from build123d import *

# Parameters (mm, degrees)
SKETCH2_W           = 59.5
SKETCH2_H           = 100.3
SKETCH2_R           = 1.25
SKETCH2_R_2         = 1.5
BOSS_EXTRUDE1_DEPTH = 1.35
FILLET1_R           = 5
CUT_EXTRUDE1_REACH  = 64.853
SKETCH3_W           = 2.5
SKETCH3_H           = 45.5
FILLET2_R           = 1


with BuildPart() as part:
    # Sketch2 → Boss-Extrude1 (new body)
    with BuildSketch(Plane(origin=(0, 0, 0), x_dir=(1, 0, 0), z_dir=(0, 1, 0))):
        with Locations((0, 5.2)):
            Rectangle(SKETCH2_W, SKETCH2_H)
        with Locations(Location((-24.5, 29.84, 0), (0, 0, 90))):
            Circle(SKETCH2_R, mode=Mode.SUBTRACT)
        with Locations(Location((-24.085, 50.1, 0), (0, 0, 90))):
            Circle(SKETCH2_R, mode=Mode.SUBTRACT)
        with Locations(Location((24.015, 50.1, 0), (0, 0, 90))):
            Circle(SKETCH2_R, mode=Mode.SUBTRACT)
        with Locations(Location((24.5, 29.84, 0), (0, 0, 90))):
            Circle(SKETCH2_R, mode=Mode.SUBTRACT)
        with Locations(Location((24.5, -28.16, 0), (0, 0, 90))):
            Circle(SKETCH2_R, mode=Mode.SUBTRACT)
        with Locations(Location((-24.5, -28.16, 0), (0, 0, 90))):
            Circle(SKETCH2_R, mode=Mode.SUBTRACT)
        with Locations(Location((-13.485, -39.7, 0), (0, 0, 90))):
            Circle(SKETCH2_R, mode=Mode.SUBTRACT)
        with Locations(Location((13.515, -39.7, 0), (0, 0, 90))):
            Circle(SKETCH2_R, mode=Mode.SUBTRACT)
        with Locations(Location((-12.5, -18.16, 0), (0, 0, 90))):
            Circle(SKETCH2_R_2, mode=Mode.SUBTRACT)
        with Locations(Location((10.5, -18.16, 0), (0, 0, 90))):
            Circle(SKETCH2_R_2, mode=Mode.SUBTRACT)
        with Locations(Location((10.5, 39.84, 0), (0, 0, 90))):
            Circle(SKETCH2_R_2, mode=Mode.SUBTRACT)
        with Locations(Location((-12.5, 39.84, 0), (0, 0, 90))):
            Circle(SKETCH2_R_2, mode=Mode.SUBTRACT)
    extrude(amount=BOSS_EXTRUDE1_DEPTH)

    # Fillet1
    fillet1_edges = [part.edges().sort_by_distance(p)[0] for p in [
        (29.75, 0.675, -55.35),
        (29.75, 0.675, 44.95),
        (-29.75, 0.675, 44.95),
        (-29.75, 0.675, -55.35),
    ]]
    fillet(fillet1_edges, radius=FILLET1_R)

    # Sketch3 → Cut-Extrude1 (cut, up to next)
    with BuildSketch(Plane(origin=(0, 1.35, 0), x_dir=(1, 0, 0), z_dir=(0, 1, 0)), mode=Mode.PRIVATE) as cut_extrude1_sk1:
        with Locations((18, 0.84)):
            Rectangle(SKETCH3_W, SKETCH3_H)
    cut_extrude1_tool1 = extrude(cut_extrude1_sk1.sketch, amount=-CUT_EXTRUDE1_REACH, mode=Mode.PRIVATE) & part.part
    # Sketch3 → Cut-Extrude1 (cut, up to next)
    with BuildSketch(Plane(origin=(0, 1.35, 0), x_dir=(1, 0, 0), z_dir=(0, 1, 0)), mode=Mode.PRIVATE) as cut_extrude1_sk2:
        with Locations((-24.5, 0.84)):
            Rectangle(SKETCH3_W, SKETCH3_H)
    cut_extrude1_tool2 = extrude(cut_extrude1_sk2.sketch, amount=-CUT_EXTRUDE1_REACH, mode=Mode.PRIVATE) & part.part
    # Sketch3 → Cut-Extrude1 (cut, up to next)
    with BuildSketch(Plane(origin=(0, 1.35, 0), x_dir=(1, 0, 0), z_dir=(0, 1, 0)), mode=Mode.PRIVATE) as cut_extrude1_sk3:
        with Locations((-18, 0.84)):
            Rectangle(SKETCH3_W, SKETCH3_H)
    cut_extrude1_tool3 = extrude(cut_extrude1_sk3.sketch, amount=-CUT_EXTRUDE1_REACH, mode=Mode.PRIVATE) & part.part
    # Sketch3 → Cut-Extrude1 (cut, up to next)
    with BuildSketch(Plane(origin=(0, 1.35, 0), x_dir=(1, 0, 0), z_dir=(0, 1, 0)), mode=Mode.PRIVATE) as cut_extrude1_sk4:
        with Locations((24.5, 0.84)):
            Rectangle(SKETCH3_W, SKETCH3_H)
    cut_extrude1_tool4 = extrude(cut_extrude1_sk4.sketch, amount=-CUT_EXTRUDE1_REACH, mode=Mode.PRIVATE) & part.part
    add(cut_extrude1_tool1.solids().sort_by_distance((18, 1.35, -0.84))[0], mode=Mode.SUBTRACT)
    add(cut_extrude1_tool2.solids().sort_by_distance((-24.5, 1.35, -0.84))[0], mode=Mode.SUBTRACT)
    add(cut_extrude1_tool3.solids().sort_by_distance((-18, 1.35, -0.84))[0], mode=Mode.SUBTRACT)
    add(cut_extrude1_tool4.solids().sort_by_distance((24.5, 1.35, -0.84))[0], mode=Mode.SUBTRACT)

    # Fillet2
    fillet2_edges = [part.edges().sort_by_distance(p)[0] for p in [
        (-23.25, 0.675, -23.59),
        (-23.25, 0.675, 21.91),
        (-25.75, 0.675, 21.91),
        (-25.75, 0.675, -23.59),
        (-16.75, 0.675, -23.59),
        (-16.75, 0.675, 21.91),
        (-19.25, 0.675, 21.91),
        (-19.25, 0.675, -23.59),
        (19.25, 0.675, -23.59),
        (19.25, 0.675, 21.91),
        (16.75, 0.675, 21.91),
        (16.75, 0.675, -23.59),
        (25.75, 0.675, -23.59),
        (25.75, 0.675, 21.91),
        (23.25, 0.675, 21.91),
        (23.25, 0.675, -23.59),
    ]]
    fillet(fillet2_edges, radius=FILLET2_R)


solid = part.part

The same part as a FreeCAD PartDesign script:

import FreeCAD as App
import Part
import Sketcher
from FreeCAD import Vector
Q = App.Units.Quantity


def edges_at(feature, points):
    """Names of the edges that pass closest to the given points."""
    edges = feature.Shape.Edges
    near = lambda p: min(range(len(edges)), key=lambda i: edges[i].distToShape(Part.Vertex(*p))[0])
    return sorted({f"Edge{near(p) + 1}" for p in points})


def add_polygon(sketch, points):
    """Adds a closed chain of lines whose ends are joined by coincident constraints."""
    first, n = sketch.GeometryCount, len(points)
    for a, b in zip(points, points[1:] + points[:1]):
        sketch.addGeometry(Part.LineSegment(App.Vector(*a, 0), App.Vector(*b, 0)), False)
    for i in range(n):
        sketch.addConstraint(Sketcher.Constraint("Coincident", first + i, 2, first + (i + 1) % n, 1))

doc = App.newDocument("Part")
body = doc.addObject("PartDesign::Body", "Body")

sketch1 = body.newObject("Sketcher::SketchObject", "Sketch")
sketch1.AttachmentSupport = (doc.getObject("XZ_Plane"), [""])
sketch1.MapMode = "FlatFace"
add_polygon(sketch1, [(-29.75, -55.35), (-29.75, 44.95), (29.75, 44.95), (29.75, -55.35)])
sketch1.addGeometry(Part.Circle(Vector(-13.485, 39.7, 0), Vector(0, 0, 1), 1.25), False)
sketch1.addGeometry(Part.Circle(Vector(-24.5, 28.16, 0), Vector(0, 0, 1), 1.25), False)
sketch1.addGeometry(Part.Circle(Vector(-12.5, 18.16, 0), Vector(0, 0, 1), 1.5), False)
sketch1.addGeometry(Part.Circle(Vector(10.5, 18.16, 0), Vector(0, 0, 1), 1.5), False)
sketch1.addGeometry(Part.Circle(Vector(13.515, 39.7, 0), Vector(0, 0, 1), 1.25), False)
sketch1.addGeometry(Part.Circle(Vector(24.5, 28.16, 0), Vector(0, 0, 1), 1.25), False)
sketch1.addGeometry(Part.Circle(Vector(-24.5, -29.84, 0), Vector(0, 0, 1), 1.25), False)
sketch1.addGeometry(Part.Circle(Vector(-24.085, -50.1, 0), Vector(0, 0, 1), 1.25), False)
sketch1.addGeometry(Part.Circle(Vector(-12.5, -39.84, 0), Vector(0, 0, 1), 1.5), False)
sketch1.addGeometry(Part.Circle(Vector(10.5, -39.84, 0), Vector(0, 0, 1), 1.5), False)
sketch1.addGeometry(Part.Circle(Vector(24.5, -29.84, 0), Vector(0, 0, 1), 1.25), False)
sketch1.addGeometry(Part.Circle(Vector(24.015, -50.1, 0), Vector(0, 0, 1), 1.25), False)
sketch1.addConstraint([
    Sketcher.Constraint("Vertical", 0),
    Sketcher.Constraint("Horizontal", 1),
    Sketcher.Constraint("Vertical", 2),
    Sketcher.Constraint("Horizontal", 3),
    Sketcher.Constraint("Equal", 4, 5),
    Sketcher.Constraint("Equal", 6, 7),
    Sketcher.Constraint("Equal", 5, 8),
    Sketcher.Constraint("Equal", 8, 9),
    Sketcher.Constraint("Equal", 9, 10),
    Sketcher.Constraint("Equal", 10, 11),
    Sketcher.Constraint("Equal", 7, 12),
    Sketcher.Constraint("Equal", 12, 13),
    Sketcher.Constraint("Equal", 11, 14),
    Sketcher.Constraint("Equal", 14, 15),
    Sketcher.Constraint("Symmetric", 5, 3, 9, 3, -2),
    Sketcher.Constraint("Symmetric", 10, 3, 14, 3, -2),
    Sketcher.Constraint("Horizontal", 6, 3, 7, 3),
    Sketcher.Constraint("Horizontal", 4, 3, 8, 3),
    Sketcher.Constraint("Horizontal", 12, 3, 13, 3),
    Sketcher.Constraint("Horizontal", 11, 3, 15, 3),
    Sketcher.Constraint("Vertical", 5, 3, 10, 3),
    Sketcher.Constraint("Vertical", 6, 3, 12, 3),
    Sketcher.Constraint("Vertical", 7, 3, 13, 3),
    Sketcher.Constraint("Diameter", 6, Q("3 mm")),
    Sketcher.Constraint("Diameter", 4, Q("2.5 mm")),
    Sketcher.Constraint("DistanceX", 1, 1, 1, 2, Q("59.5 mm")),
    Sketcher.Constraint("DistanceY", 0, 1, 0, 2, Q("100.3 mm")),
    Sketcher.Constraint("DistanceX", 5, 3, 6, 3, Q("12 mm")),
    Sketcher.Constraint("DistanceY", 6, 3, 5, 3, Q("10 mm")),
    Sketcher.Constraint("DistanceX", 6, 3, 7, 3, Q("23 mm")),
    Sketcher.Constraint("DistanceX", 4, 3, 8, 3, Q("27 mm")),
    Sketcher.Constraint("DistanceX", 7, 3, 9, 3, Q("14 mm")),
    Sketcher.Constraint("DistanceY", 10, 3, 6, 3, Q("48 mm")),
    Sketcher.Constraint("DistanceY", 12, 3, 10, 3, Q("10 mm")),
    Sketcher.Constraint("DistanceY", -1, 1, 4, 3, Q("39.7 mm")),
    Sketcher.Constraint("DistanceY", 11, 3, -1, 1, Q("50.1 mm")),
    Sketcher.Constraint("DistanceX", 11, 3, 4, 3, Q("10.6 mm")),
    Sketcher.Constraint("DistanceX", 11, 3, 15, 3, Q("48.1 mm")),
    Sketcher.Constraint("DistanceY", -1, 1, 5, 3, Q("28.16 mm")),
    Sketcher.Constraint("DistanceX", 0, 2, -1, 1, Q("29.75 mm")),
    Sketcher.Constraint("DistanceY", -1, 1, 0, 2, Q("44.95 mm")),
    Sketcher.Constraint("DistanceX", 4, 3, -1, 1, Q("13.485 mm")),
])
pad1 = body.newObject("PartDesign::Pad", "Pad")
pad1.Profile = sketch1
pad1.Length = 1.35
pad1.Reversed = True
doc.recompute()

fillet = body.newObject("PartDesign::Fillet", "Fillet")
fillet.Base = (pad1, edges_at(pad1, [
    (29.75, 0.675, -55.35),
    (29.75, 0.675, 44.95),
    (-29.75, 0.675, 44.95),
    (-29.75, 0.675, -55.35),
]))
fillet.Radius = 5

sketch2 = body.newObject("Sketcher::SketchObject", "Sketch001")
sketch2.AttachmentSupport = (doc.getObject("XZ_Plane"), [""])
sketch2.MapMode = "FlatFace"
sketch2.AttachmentOffset = App.Placement(Vector(0, 0, -1.35), App.Rotation())
add_polygon(sketch2, [(16.75, -23.59), (16.75, 21.91), (19.25, 21.91), (19.25, -23.59)])
sketch2.addConstraint([
    Sketcher.Constraint("Vertical", 0),
    Sketcher.Constraint("Horizontal", 1),
    Sketcher.Constraint("Vertical", 2),
    Sketcher.Constraint("Horizontal", 3),
    Sketcher.Constraint("DistanceX", 1, 1, 1, 2, Q("2.5 mm")),
    Sketcher.Constraint("DistanceY", 0, 1, 0, 2, Q("45.5 mm")),
    Sketcher.Constraint("DistanceX", -1, 1, 0, 2, Q("16.75 mm")),
    Sketcher.Constraint("DistanceY", -1, 1, 0, 2, Q("21.91 mm")),
])
pocket1 = body.newObject("PartDesign::Pocket", "Pocket")
pocket1.Profile = sketch2
pocket1.Type = "UpToFirst"
pocket1.Reversed = True

sketch3 = body.newObject("Sketcher::SketchObject", "Sketch002")
sketch3.AttachmentSupport = (doc.getObject("XZ_Plane"), [""])
sketch3.MapMode = "FlatFace"
sketch3.AttachmentOffset = App.Placement(Vector(0, 0, -1.35), App.Rotation())
add_polygon(sketch3, [(-25.75, -23.59), (-25.75, 21.91), (-23.25, 21.91), (-23.25, -23.59)])
sketch3.addConstraint([
    Sketcher.Constraint("Vertical", 0),
    Sketcher.Constraint("Horizontal", 1),
    Sketcher.Constraint("Vertical", 2),
    Sketcher.Constraint("Horizontal", 3),
    Sketcher.Constraint("DistanceX", 1, 1, 1, 2, Q("2.5 mm")),
    Sketcher.Constraint("DistanceY", 0, 1, 0, 2, Q("45.5 mm")),
    Sketcher.Constraint("DistanceX", 0, 2, -1, 1, Q("25.75 mm")),
    Sketcher.Constraint("DistanceY", -1, 1, 0, 2, Q("21.91 mm")),
])
pocket2 = body.newObject("PartDesign::Pocket", "Pocket001")
pocket2.Profile = sketch3
pocket2.Type = "UpToFirst"
pocket2.Reversed = True

sketch4 = body.newObject("Sketcher::SketchObject", "Sketch003")
sketch4.AttachmentSupport = (doc.getObject("XZ_Plane"), [""])
sketch4.MapMode = "FlatFace"
sketch4.AttachmentOffset = App.Placement(Vector(0, 0, -1.35), App.Rotation())
add_polygon(sketch4, [(-19.25, -23.59), (-19.25, 21.91), (-16.75, 21.91), (-16.75, -23.59)])
sketch4.addConstraint([
    Sketcher.Constraint("Vertical", 0),
    Sketcher.Constraint("Horizontal", 1),
    Sketcher.Constraint("Vertical", 2),
    Sketcher.Constraint("Horizontal", 3),
    Sketcher.Constraint("DistanceX", 1, 1, 1, 2, Q("2.5 mm")),
    Sketcher.Constraint("DistanceY", 0, 1, 0, 2, Q("45.5 mm")),
    Sketcher.Constraint("DistanceX", 0, 2, -1, 1, Q("19.25 mm")),
    Sketcher.Constraint("DistanceY", -1, 1, 0, 2, Q("21.91 mm")),
])
pocket3 = body.newObject("PartDesign::Pocket", "Pocket002")
pocket3.Profile = sketch4
pocket3.Type = "UpToFirst"
pocket3.Reversed = True

sketch5 = body.newObject("Sketcher::SketchObject", "Sketch004")
sketch5.AttachmentSupport = (doc.getObject("XZ_Plane"), [""])
sketch5.MapMode = "FlatFace"
sketch5.AttachmentOffset = App.Placement(Vector(0, 0, -1.35), App.Rotation())
add_polygon(sketch5, [(23.25, -23.59), (23.25, 21.91), (25.75, 21.91), (25.75, -23.59)])
sketch5.addConstraint([
    Sketcher.Constraint("Vertical", 0),
    Sketcher.Constraint("Horizontal", 1),
    Sketcher.Constraint("Vertical", 2),
    Sketcher.Constraint("Horizontal", 3),
    Sketcher.Constraint("DistanceX", 1, 1, 1, 2, Q("2.5 mm")),
    Sketcher.Constraint("DistanceY", 0, 1, 0, 2, Q("45.5 mm")),
    Sketcher.Constraint("DistanceX", -1, 1, 0, 2, Q("23.25 mm")),
    Sketcher.Constraint("DistanceY", -1, 1, 0, 2, Q("21.91 mm")),
])
pocket4 = body.newObject("PartDesign::Pocket", "Pocket003")
pocket4.Profile = sketch5
pocket4.Type = "UpToFirst"
pocket4.Reversed = True
doc.recompute()

fillet2 = body.newObject("PartDesign::Fillet", "Fillet001")
fillet2.Base = (pocket4, edges_at(pocket4, [
    (-23.25, 0.675, -23.59),
    (-23.25, 0.675, 21.91),
    (-25.75, 0.675, 21.91),
    (-25.75, 0.675, -23.59),
    (-16.75, 0.675, -23.59),
    (-16.75, 0.675, 21.91),
    (-19.25, 0.675, 21.91),
    (-19.25, 0.675, -23.59),
    (19.25, 0.675, -23.59),
    (19.25, 0.675, 21.91),
    (16.75, 0.675, 21.91),
    (16.75, 0.675, -23.59),
    (25.75, 0.675, -23.59),
    (25.75, 0.675, 21.91),
    (23.25, 0.675, 21.91),
    (23.25, 0.675, -23.59),
]))
fillet2.Radius = 1

doc.recompute()
